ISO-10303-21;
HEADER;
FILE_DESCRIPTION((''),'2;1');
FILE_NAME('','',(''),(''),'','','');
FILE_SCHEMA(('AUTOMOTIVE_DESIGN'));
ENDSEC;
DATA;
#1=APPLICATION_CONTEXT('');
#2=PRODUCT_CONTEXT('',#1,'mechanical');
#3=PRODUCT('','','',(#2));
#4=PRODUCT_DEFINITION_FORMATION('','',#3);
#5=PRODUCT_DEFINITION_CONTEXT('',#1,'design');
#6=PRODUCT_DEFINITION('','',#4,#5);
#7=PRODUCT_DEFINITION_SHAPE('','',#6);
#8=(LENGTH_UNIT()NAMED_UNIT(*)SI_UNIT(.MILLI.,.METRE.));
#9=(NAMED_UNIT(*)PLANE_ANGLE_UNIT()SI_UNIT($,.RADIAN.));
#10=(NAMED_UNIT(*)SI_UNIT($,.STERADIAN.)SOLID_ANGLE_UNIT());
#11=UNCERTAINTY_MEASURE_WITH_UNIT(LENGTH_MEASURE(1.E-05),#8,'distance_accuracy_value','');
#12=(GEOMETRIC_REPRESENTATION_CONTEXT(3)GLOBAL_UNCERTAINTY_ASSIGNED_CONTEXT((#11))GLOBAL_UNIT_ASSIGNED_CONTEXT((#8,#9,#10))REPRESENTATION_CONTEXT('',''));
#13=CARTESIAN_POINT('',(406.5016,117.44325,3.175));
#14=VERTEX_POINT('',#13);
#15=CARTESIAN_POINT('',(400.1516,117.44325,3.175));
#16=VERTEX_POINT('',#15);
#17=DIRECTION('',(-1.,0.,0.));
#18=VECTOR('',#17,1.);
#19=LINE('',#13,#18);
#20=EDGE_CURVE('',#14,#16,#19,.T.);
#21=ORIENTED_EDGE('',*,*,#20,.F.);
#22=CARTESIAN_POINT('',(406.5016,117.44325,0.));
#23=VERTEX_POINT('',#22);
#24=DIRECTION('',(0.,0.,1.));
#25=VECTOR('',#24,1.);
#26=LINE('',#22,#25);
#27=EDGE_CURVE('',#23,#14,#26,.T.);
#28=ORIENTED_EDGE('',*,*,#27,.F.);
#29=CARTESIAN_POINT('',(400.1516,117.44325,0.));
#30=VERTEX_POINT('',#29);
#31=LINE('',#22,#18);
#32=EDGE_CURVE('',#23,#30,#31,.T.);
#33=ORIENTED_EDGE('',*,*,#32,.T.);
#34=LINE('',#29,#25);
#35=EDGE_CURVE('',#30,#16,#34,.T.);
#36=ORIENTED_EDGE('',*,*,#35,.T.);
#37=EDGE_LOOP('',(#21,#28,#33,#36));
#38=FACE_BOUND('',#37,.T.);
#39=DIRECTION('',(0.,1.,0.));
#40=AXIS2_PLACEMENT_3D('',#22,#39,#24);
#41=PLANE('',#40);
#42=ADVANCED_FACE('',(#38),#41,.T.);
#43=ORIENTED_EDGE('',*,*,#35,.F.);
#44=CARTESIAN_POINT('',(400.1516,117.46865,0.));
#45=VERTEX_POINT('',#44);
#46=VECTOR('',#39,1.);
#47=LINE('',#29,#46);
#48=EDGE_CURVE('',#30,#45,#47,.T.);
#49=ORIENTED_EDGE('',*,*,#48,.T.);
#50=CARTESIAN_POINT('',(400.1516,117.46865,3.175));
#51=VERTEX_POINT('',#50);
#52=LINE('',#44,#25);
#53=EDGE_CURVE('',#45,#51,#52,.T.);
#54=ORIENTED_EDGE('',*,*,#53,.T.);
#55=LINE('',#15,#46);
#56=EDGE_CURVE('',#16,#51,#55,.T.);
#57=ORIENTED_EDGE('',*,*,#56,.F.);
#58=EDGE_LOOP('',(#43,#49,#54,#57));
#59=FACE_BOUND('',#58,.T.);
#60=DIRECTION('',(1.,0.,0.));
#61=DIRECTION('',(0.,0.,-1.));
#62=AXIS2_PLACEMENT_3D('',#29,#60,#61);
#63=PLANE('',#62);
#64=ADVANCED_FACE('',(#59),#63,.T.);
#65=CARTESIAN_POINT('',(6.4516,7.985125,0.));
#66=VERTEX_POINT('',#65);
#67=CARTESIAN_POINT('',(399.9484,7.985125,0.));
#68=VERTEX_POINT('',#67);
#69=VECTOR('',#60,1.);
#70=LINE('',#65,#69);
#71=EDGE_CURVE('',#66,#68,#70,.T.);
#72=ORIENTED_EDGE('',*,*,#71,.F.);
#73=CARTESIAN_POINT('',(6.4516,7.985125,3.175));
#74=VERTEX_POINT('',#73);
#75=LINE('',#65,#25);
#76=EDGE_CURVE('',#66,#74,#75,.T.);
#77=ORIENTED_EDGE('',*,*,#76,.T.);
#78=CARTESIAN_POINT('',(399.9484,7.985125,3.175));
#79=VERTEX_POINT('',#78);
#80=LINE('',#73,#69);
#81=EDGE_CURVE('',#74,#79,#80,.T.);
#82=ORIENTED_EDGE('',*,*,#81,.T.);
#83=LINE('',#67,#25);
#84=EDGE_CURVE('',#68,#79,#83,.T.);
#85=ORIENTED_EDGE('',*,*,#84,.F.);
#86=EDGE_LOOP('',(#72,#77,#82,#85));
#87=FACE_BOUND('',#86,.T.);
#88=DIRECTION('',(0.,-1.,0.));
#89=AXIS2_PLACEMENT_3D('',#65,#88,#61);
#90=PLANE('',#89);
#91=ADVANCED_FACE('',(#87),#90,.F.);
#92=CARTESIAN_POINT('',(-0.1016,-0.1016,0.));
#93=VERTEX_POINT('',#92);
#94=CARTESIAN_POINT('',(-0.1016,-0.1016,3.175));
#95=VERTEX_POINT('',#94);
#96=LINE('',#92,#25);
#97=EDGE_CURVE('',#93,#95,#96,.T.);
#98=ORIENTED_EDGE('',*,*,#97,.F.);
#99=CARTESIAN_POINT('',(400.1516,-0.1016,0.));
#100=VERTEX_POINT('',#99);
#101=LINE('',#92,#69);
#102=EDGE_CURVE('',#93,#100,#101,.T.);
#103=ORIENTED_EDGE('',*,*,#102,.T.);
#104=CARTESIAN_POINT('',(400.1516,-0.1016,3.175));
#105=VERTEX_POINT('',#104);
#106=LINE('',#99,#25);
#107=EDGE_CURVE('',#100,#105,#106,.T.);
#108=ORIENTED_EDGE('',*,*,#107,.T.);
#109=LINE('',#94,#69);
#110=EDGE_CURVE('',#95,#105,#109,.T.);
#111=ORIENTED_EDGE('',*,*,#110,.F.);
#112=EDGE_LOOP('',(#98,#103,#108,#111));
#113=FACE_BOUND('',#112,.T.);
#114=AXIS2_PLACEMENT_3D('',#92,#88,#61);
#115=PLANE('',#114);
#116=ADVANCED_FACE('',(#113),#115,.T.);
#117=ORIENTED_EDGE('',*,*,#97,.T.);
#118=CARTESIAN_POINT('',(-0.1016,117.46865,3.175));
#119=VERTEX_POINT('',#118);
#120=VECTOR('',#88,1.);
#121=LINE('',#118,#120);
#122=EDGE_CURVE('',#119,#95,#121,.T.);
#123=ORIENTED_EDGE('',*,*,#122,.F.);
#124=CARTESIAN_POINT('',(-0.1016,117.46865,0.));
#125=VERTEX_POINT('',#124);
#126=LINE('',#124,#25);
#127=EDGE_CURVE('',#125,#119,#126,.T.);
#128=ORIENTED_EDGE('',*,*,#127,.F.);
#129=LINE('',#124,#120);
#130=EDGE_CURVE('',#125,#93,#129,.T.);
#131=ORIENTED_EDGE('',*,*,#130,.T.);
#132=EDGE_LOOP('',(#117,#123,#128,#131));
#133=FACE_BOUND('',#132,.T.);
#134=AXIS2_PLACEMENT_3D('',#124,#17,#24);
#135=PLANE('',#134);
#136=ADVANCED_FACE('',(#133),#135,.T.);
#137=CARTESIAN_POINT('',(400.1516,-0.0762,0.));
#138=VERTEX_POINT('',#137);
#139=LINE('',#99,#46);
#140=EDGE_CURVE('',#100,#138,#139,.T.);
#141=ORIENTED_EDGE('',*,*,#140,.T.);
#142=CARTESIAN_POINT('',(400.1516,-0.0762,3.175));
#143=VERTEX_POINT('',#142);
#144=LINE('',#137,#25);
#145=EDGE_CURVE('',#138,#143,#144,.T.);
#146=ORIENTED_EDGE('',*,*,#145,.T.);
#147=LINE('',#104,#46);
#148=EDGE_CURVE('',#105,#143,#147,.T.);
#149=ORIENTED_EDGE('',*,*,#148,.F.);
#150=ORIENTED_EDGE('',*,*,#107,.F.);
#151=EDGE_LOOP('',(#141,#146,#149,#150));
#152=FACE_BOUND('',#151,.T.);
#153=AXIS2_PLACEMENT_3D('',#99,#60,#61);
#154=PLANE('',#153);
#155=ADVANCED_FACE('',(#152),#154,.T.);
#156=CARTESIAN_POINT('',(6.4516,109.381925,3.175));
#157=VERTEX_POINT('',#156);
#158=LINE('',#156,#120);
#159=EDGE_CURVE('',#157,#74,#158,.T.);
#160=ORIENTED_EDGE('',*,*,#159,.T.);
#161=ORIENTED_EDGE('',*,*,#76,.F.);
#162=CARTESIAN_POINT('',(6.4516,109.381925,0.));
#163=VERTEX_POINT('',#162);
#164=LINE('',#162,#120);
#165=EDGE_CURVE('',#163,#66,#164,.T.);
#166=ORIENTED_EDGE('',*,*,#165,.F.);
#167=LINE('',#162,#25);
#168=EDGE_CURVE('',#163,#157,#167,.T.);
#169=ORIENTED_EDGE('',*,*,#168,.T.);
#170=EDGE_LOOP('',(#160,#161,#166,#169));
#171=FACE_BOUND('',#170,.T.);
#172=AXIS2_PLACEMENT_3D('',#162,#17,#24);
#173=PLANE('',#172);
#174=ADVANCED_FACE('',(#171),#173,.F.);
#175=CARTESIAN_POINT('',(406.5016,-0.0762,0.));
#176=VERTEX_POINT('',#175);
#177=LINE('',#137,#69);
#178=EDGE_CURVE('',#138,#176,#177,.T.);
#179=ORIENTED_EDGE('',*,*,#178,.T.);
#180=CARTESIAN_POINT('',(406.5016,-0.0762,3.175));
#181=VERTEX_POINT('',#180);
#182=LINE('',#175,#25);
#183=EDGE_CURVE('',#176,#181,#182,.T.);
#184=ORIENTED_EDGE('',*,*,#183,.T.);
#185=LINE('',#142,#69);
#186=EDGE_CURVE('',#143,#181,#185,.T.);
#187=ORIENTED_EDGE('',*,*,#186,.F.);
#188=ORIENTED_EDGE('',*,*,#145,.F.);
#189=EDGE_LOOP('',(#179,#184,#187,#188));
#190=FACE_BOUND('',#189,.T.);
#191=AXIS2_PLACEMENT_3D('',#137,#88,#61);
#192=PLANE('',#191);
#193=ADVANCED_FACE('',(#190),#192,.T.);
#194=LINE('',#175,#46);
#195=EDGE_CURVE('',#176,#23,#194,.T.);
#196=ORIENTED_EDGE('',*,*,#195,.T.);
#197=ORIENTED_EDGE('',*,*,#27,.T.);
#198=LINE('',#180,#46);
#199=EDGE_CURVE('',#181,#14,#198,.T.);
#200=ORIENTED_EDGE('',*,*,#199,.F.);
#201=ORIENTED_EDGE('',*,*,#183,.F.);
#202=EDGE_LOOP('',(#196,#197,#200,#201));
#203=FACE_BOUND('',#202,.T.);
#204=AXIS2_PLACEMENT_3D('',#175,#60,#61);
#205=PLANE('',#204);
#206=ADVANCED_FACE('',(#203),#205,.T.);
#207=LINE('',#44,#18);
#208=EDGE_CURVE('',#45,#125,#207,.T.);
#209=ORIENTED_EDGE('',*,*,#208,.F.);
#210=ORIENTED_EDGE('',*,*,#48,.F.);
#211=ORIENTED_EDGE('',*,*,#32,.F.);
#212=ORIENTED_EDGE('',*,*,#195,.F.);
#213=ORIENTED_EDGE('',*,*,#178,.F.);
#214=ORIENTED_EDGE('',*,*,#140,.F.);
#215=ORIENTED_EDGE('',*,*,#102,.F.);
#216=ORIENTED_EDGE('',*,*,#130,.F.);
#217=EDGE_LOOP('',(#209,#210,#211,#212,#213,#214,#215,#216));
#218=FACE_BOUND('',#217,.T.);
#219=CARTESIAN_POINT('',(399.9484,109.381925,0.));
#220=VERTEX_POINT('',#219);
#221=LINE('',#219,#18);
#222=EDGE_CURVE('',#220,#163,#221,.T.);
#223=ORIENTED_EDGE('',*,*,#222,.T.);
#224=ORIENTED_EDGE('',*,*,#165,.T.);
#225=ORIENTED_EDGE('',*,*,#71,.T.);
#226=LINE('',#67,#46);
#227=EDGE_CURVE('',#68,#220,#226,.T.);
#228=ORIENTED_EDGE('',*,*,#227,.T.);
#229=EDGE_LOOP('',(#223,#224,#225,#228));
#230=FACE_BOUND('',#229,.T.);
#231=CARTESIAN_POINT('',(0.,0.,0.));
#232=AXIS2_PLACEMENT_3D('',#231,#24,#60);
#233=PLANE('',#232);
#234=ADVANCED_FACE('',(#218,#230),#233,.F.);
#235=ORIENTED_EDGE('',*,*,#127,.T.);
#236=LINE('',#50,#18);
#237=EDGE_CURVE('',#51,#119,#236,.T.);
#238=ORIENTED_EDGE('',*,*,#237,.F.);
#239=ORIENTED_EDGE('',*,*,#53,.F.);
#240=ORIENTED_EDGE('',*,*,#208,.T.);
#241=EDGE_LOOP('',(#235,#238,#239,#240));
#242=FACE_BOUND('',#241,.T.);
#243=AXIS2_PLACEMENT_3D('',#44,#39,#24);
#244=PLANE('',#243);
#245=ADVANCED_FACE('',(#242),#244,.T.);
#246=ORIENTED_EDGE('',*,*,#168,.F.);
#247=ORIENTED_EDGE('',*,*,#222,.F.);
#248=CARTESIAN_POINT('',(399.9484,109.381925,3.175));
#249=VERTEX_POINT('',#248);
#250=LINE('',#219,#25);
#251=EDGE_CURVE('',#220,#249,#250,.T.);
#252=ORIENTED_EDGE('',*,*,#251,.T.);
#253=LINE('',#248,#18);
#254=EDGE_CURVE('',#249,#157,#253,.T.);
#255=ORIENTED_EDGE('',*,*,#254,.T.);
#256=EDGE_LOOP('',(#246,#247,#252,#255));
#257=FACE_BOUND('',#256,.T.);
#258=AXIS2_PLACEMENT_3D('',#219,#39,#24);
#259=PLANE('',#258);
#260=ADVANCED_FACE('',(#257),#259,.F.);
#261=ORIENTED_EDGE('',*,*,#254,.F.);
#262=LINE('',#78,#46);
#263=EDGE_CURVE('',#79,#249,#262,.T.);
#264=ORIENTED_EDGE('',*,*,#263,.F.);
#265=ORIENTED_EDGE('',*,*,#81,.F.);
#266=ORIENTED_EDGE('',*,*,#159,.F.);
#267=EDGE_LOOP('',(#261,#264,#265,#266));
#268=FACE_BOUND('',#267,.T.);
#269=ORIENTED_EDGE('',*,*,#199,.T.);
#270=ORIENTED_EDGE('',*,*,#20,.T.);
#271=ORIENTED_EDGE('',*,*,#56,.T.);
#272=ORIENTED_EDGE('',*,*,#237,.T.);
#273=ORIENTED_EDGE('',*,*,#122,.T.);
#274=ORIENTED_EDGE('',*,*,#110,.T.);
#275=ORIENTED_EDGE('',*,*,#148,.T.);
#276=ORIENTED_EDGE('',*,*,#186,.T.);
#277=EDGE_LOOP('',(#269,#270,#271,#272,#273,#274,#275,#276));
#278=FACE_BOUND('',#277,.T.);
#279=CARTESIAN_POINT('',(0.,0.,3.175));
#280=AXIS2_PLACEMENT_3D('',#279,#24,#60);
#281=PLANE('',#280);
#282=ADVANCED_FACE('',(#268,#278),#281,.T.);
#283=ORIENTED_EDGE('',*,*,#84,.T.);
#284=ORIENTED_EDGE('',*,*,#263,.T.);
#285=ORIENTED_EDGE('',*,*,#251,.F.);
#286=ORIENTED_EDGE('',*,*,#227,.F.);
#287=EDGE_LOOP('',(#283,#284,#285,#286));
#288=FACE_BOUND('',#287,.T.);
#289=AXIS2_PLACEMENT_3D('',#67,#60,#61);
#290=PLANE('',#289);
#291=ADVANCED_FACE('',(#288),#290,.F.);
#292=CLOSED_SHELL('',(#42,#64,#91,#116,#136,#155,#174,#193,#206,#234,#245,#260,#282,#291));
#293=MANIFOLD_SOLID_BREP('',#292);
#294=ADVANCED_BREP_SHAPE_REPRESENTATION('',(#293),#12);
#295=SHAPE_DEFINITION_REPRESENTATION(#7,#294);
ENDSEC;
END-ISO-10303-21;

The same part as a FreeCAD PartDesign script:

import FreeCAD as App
import Part
import Sketcher
from FreeCAD import Vector
Q = App.Units.Quantity

doc = App.newDocument("Part")
body = doc.addObject("PartDesign::Body", "Body")

# Sketch on XY plane
sketch1 = body.newObject("Sketcher::SketchObject", "Sketch")
sketch1.AttachmentSupport = (doc.getObject("XY_Plane"), [""])
sketch1.MapMode = "FlatFace"
sketch1.addGeometry([
    Part.LineSegment(Vector(0, 0, 0), Vector(400.05, 0, 0)),  # 0
    Part.LineSegment(Vector(400.05, 0, 0), Vector(400.05, 0.025, 0)),  # 1
    Part.LineSegment(Vector(400.05, 0.025, 0), Vector(406.4, 0.025, 0)),  # 2
    Part.LineSegment(Vector(406.4, 0.025, 0), Vector(406.4, 117.342, 0)),  # 3
    Part.LineSegment(Vector(406.4, 117.342, 0), Vector(400.05, 117.342, 0)),  # 4
    Part.LineSegment(Vector(400.05, 117.342, 0), Vector(400.05, 117.367, 0)),  # 5
    Part.LineSegment(Vector(400.05, 117.367, 0), Vector(0, 117.367, 0)),  # 6
    Part.LineSegment(Vector(0, 117.367, 0), Vector(0, 0, 0)),  # 7
    Part.LineSegment(Vector(400.05, 7.884, 0), Vector(6.35, 7.884, 0)),  # 8
    Part.LineSegment(Vector(6.35, 7.884, 0), Vector(6.35, 109.484, 0)),  # 9
    Part.LineSegment(Vector(6.35, 109.484, 0), Vector(400.05, 109.484, 0)),  # 10
    Part.LineSegment(Vector(400.05, 109.484, 0), Vector(400.05, 7.884, 0)),  # 11
], False)
sketch1.addConstraint([
    Sketcher.Constraint("Coincident", 0, 2, 1, 1),
    Sketcher.Constraint("Coincident", 1, 2, 2, 1),
    Sketcher.Constraint("Coincident", 2, 2, 3, 1),
    Sketcher.Constraint("Coincident", 3, 2, 4, 1),
    Sketcher.Constraint("Coincident", 4, 2, 5, 1),
    Sketcher.Constraint("Coincident", 5, 2, 6, 1),
    Sketcher.Constraint("Coincident", 6, 2, 7, 1),
    Sketcher.Constraint("Coincident", 7, 2, 0, 1),
    Sketcher.Constraint("Coincident", 8, 2, 9, 1),
    Sketcher.Constraint("Coincident", 9, 2, 10, 1),
    Sketcher.Constraint("Coincident", 10, 2, 11, 1),
    Sketcher.Constraint("Coincident", 11, 2, 8, 1),
    Sketcher.Constraint("Horizontal", 0),
    Sketcher.Constraint("Vertical", 1),
    Sketcher.Constraint("Horizontal", 2),
    Sketcher.Constraint("Vertical", 3),
    Sketcher.Constraint("Horizontal", 4),
    Sketcher.Constraint("Vertical", 5),
    Sketcher.Constraint("Horizontal", 6),
    Sketcher.Constraint("Vertical", 7),
    Sketcher.Constraint("Horizontal", 8),
    Sketcher.Constraint("Vertical", 9),
    Sketcher.Constraint("Horizontal", 10),
    Sketcher.Constraint("Vertical", 11),
    Sketcher.Constraint("Coincident", 7, 2, -1, 1),
    Sketcher.Constraint("Vertical", 1, 2, 4, 2),
    Sketcher.Constraint("Vertical", 5, 2, 10, 2),
    Sketcher.Constraint("Equal", 1, 5),
    Sketcher.Constraint("DistanceY", 9, 1, 9, 2, Q("4 in")),
    Sketcher.Constraint("DistanceX", 8, 2, 8, 1, Q("15.5 in")),
    Sketcher.Constraint("DistanceX", -1, 1, 2, 2, Q("16 in")),
    Sketcher.Constraint("DistanceX", 0, 1, 0, 2, Q("15.75 in")),
    Sketcher.Constraint("DistanceY", 1, 1, 1, 2, Q("0.001 in")),
    Sketcher.Constraint("DistanceY", 3, 1, 3, 2, Q("117.31625 mm")),
    Sketcher.Constraint("DistanceY", -1, 1, 8, 2, Q("7.883525 mm")),
])
pad1 = body.newObject("PartDesign::Pad", "Pad")
pad1.Profile = sketch1
pad1.Length = Q("0.125 in")

# Sketch on XY plane
sketch2 = body.newObject("Sketcher::SketchObject", "Sketch001")
sketch2.AttachmentSupport = (doc.getObject("XY_Plane"), [""])
sketch2.MapMode = "FlatFace"
sketch2.AttachmentOffset = App.Placement(Vector(0, 0, 0.125 * 25.4), App.Rotation())
sketch2.addGeometry([
    Part.LineSegment(Vector(400.152, 117.469, 0), Vector(-0.102, 117.469, 0)),  # 0
    Part.LineSegment(Vector(-0.102, 117.469, 0), Vector(-0.102, -0.102, 0)),  # 1
    Part.LineSegment(Vector(-0.102, -0.102, 0), Vector(400.152, -0.102, 0)),  # 2
    Part.LineSegment(Vector(400.152, -0.102, 0), Vector(400.152, -0.076, 0)),  # 3
    Part.LineSegment(Vector(400.152, -0.076, 0), Vector(406.502, -0.076, 0)),  # 4
    Part.LineSegment(Vector(406.502, -0.076, 0), Vector(406.502, 117.443, 0)),  # 5
    Part.LineSegment(Vector(406.502, 117.443, 0), Vector(400.152, 117.443, 0)),  # 6
    Part.LineSegment(Vector(400.152, 117.443, 0), Vector(400.152, 117.469, 0)),  # 7
    Part.LineSegment(Vector(399.948, 7.985, 0), Vector(6.452, 7.985, 0)),  # 8
    Part.LineSegment(Vector(6.452, 7.985, 0), Vector(6.452, 109.382, 0)),  # 9
    Part.LineSegment(Vector(6.452, 109.382, 0), Vector(399.948, 109.382, 0)),  # 10
    Part.LineSegment(Vector(399.948, 109.382, 0), Vector(399.948, 7.985, 0)),  # 11
], False)
sketch2.addConstraint([
    Sketcher.Constraint("Coincident", 0, 2, 1, 1),
    Sketcher.Constraint("Coincident", 1, 2, 2, 1),
    Sketcher.Constraint("Coincident", 2, 2, 3, 1),
    Sketcher.Constraint("Coincident", 3, 2, 4, 1),
    Sketcher.Constraint("Coincident", 4, 2, 5, 1),
    Sketcher.Constraint("Coincident", 5, 2, 6, 1),
    Sketcher.Constraint("Coincident", 6, 2, 7, 1),
    Sketcher.Constraint("Coincident", 7, 2, 0, 1),
    Sketcher.Constraint("Coincident", 8, 2, 9, 1),
    Sketcher.Constraint("Coincident", 9, 2, 10, 1),
    Sketcher.Constraint("Coincident", 10, 2, 11, 1),
    Sketcher.Constraint("Coincident", 11, 2, 8, 1),
    Sketcher.Constraint("Horizontal", 0),
    Sketcher.Constraint("Vertical", 1),
    Sketcher.Constraint("Horizontal", 2),
    Sketcher.Constraint("Vertical", 3),
    Sketcher.Constraint("Horizontal", 4),
    Sketcher.Constraint("Vertical", 5),
    Sketcher.Constraint("Horizontal", 6),
    Sketcher.Constraint("Vertical", 7),
    Sketcher.Constraint("Horizontal", 8),
    Sketcher.Constraint("Vertical", 9),
    Sketcher.Constraint("Horizontal", 10),
    Sketcher.Constraint("Vertical", 11),
    Sketcher.Constraint("Vertical", 3, 2, 6, 2),
    Sketcher.Constraint("Equal", 3, 7),
    Sketcher.Constraint("DistanceX", 4, 1, 4, 2, Q("0.25 in")),
    Sketcher.Constraint("DistanceX", 8, 2, 3, 2, Q("15.5 in")),
    Sketcher.Constraint("DistanceX", 0, 2, 0, 1, Q("15.758 in")),
    Sketcher.Constraint("DistanceX", 8, 2, 8, 1, Q("15.492 in")),
    Sketcher.Constraint("DistanceY", 3, 1, 3, 2, Q("0.001 in")),
    Sketcher.Constraint("DistanceY", 9, 1, 9, 2, Q("3.992 in")),
    Sketcher.Constraint("DistanceX", 0, 2, -1, 1, Q("0.004 in")),
    Sketcher.Constraint("DistanceY", 1, 2, -1, 1, Q("0.004 in")),
    Sketcher.Constraint("DistanceY", 1, 2, 1, 1, Q("117.57025 mm")),
    Sketcher.Constraint("DistanceY", -1, 1, 8, 2, Q("7.985125 mm")),
])
pad2 = body.newObject("PartDesign::Pad", "Pad001")
pad2.Profile = sketch2
pad2.Length = Q("0.125 in")
pad2.Reversed = True

doc.recompute()
